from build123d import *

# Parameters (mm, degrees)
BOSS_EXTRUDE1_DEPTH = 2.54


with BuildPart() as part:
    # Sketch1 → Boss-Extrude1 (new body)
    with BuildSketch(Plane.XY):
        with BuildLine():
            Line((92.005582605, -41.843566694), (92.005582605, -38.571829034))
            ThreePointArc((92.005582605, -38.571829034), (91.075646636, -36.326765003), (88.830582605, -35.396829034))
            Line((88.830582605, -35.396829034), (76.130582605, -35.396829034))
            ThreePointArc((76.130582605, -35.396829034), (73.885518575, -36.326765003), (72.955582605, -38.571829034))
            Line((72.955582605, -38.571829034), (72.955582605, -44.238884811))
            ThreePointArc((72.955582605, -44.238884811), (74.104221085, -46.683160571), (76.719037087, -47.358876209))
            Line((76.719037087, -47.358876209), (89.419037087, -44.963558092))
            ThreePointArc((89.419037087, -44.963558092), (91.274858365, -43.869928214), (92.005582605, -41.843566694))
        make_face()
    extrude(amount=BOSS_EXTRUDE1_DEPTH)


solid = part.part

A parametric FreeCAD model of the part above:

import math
import FreeCAD as App
import Part
import Sketcher
from FreeCAD import Vector
Q = App.Units.Quantity

doc = App.newDocument("Part")
params = doc.addObject("Spreadsheet::Sheet", "Params")
for row, (alias, value) in enumerate([
    ("sketch1_width", "0.5 in"),
    ("sketch1_radius", "0.125 in"),
    ("pad1_length", "0.1 in"),
], start=1):
    params.set(f"A{row}", alias)
    params.set(f"B{row}", "=" + value)
    params.setAlias(f"B{row}", alias)

body = doc.addObject("PartDesign::Body", "Body")

# Sketch on XY plane
sketch1 = body.newObject("Sketcher::SketchObject", "Sketch")
sketch1.AttachmentSupport = (doc.getObject("XY_Plane"), [""])
sketch1.MapMode = "FlatFace"
sketch1.addGeometry(Part.LineSegment(Vector(92.005583, -41.843567, 0), Vector(92.005583, -38.571829, 0)), False)
sketch1.addGeometry(Part.ArcOfCircle(Part.Circle(Vector(88.830583, -38.571829, 0), Vector(0, 0, 1), 3.175), math.radians(0), math.radians(90)), False)
sketch1.addGeometry(Part.LineSegment(Vector(88.830583, -35.396829, 0), Vector(76.130583, -35.396829, 0)), False)
sketch1.addGeometry(Part.ArcOfCircle(Part.Circle(Vector(76.130583, -38.571829, 0), Vector(0, 0, 1), 3.175), math.radians(90), math.radians(180)), False)
sketch1.addGeometry(Part.LineSegment(Vector(72.955583, -38.571829, 0), Vector(72.955583, -44.238885, 0)), False)
sketch1.addGeometry(Part.ArcOfCircle(Part.Circle(Vector(76.130583, -44.238885, 0), Vector(0, 0, 1), 3.175), math.radians(180), math.radians(280.680955)), False)
sketch1.addGeometry(Part.LineSegment(Vector(76.719037, -47.358876, 0), Vector(89.419037, -44.963558, 0)), False)
sketch1.addGeometry(Part.ArcOfCircle(Part.Circle(Vector(88.830583, -41.843567, 0), Vector(0, 0, 1), 3.175), math.radians(-79.319045), math.radians(0)), False)
sketch1.addConstraint(Sketcher.Constraint("Tangent", 0, 2, 1, 1))
sketch1.addConstraint(Sketcher.Constraint("Tangent", 1, 2, 2, 1))
sketch1.addConstraint(Sketcher.Constraint("Tangent", 2, 2, 3, 1))
sketch1.addConstraint(Sketcher.Constraint("Tangent", 3, 2, 4, 1))
sketch1.addConstraint(Sketcher.Constraint("Tangent", 4, 2, 5, 1))
sketch1.addConstraint(Sketcher.Constraint("Tangent", 5, 2, 6, 1))
sketch1.addConstraint(Sketcher.Constraint("Tangent", 6, 2, 7, 1))
sketch1.addConstraint(Sketcher.Constraint("Tangent", 7, 2, 0, 1))
sketch1.addConstraint(Sketcher.Constraint("Vertical", 0))
sketch1.addConstraint(Sketcher.Constraint("Horizontal", 2))
sketch1.addConstraint(Sketcher.Constraint("Vertical", 4))
sketch1.addConstraint(Sketcher.Constraint("Equal", 1, 3))
sketch1.addConstraint(Sketcher.Constraint("Equal", 3, 5))
sketch1.addConstraint(Sketcher.Constraint("Equal", 5, 7))
sketch1.addConstraint(Sketcher.Constraint("DistanceX", 2, 2, 2, 1, Q("0.5 in")))
sketch1.addConstraint(Sketcher.Constraint("Radius", 1, Q("0.125 in")))
sketch1.addConstraint(Sketcher.Constraint("DistanceY", 0, 1, 0, 2, 3.271738))
sketch1.addConstraint(Sketcher.Constraint("DistanceY", 4, 2, 4, 1, 5.667056))
sketch1.addConstraint(Sketcher.Constraint("DistanceY", 1, 3, -1, 1, 38.571829))
sketch1.addConstraint(Sketcher.Constraint("DistanceX", -1, 1, 1, 3, 88.830583))
sketch1.setExpression("Constraints[14]", "Params.sketch1_width")
sketch1.setExpression("Constraints[15]", "Params.sketch1_radius")
pad1 = body.newObject("PartDesign::Pad", "Pad")
pad1.Profile = sketch1
pad1.setExpression("Length", "Params.pad1_length")

doc.recompute()
